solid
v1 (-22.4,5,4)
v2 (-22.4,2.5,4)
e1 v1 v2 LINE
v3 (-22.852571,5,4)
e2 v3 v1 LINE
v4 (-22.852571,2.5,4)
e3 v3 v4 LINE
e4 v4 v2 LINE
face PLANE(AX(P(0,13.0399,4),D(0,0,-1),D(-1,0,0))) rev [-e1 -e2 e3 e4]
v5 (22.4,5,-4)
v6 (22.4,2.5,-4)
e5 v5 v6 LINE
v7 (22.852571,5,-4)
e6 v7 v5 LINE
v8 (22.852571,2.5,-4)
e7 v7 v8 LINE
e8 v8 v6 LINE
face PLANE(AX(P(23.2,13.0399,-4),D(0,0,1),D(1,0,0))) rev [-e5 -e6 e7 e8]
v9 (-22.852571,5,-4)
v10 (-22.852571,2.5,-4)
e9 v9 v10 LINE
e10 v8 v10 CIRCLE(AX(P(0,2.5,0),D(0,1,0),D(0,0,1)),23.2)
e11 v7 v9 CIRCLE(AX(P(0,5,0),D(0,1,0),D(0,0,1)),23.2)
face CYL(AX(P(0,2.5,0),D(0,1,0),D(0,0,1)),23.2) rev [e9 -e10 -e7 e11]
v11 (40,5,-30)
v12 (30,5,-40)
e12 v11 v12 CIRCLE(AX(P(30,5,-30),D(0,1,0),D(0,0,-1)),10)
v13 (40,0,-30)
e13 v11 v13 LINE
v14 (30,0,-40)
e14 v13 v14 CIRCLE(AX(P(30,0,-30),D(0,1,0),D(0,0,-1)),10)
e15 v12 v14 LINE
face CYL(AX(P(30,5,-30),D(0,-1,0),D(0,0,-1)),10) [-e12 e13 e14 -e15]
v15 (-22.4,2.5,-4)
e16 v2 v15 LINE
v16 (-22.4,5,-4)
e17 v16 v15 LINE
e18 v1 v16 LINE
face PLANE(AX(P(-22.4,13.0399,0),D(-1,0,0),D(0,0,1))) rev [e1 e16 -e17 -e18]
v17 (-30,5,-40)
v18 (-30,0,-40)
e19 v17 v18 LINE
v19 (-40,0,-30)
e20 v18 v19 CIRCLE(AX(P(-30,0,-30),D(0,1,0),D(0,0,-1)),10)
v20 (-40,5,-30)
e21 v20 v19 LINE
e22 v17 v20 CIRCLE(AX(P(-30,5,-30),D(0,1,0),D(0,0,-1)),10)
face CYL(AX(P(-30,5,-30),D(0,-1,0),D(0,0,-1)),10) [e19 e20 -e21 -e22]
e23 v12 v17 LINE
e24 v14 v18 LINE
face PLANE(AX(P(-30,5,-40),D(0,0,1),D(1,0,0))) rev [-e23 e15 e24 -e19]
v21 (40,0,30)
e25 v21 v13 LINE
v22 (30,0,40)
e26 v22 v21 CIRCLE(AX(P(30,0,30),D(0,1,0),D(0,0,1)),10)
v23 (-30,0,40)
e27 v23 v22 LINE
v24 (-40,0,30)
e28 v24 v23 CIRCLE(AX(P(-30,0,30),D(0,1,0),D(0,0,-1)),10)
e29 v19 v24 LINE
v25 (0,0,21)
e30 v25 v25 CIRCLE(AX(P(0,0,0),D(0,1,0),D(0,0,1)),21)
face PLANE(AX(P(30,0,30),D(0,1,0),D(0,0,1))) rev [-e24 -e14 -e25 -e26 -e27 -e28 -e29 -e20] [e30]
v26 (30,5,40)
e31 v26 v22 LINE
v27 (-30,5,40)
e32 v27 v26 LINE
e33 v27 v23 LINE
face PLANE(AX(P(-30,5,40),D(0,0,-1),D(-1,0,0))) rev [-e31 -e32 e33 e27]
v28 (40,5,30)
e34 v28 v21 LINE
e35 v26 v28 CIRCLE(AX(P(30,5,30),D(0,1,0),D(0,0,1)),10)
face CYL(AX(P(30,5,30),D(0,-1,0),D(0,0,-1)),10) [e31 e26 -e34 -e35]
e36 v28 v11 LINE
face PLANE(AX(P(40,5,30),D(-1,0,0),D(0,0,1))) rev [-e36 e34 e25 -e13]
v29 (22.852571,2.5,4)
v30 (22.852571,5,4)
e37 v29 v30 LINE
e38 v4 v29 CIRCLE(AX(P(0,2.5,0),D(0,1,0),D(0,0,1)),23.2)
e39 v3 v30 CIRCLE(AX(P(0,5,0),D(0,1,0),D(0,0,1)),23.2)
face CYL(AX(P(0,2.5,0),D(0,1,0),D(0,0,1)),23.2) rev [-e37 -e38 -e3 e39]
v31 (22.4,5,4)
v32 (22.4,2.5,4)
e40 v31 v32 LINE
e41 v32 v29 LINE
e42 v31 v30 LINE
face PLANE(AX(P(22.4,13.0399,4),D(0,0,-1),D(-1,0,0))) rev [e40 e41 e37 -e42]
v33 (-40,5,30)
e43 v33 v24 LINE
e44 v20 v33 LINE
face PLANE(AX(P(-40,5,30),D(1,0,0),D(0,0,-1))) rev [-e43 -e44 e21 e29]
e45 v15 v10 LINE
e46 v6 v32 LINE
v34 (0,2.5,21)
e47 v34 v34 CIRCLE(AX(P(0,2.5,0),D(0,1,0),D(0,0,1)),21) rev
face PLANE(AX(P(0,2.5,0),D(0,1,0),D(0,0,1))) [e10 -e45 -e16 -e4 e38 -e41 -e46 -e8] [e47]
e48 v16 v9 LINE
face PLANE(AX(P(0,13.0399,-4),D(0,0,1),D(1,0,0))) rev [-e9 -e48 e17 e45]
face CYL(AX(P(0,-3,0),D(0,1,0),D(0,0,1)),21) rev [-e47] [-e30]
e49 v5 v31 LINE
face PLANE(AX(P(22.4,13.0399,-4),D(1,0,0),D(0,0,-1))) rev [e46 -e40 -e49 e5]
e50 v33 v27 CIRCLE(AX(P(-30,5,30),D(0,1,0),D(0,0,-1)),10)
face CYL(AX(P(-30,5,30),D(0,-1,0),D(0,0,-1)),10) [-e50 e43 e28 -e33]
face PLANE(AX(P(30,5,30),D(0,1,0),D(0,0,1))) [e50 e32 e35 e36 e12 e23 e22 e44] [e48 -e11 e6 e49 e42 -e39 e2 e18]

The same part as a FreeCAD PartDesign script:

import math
import FreeCAD as App
import Part
import Sketcher

V = App.Vector
Q = App.Units.Quantity


def add_polygon(sketch, points):
    """Adds a closed chain of lines whose ends are joined by coincident constraints."""
    first, n = sketch.GeometryCount, len(points)
    for a, b in zip(points, points[1:] + points[:1]):
        sketch.addGeometry(Part.LineSegment(App.Vector(*a, 0), App.Vector(*b, 0)), False)
    for i in range(n):
        sketch.addConstraint(Sketcher.Constraint("Coincident", first + i, 2, first + (i + 1) % n, 1))

doc = App.newDocument("Part")
params = doc.addObject("Spreadsheet::Sheet", "Params")
for row, (alias, value) in enumerate([
    ("sketch1_radius", "10 mm"),
    ("sketch1_width", "60 mm"),
    ("pad1_length", "5 mm"),
    ("sketch2_diameter", "42 mm"),
    ("pocket1_length", "8 mm"),
    ("sketch3_diameter", "46.4 mm"),
    ("pocket2_length", "2.5 mm"),
    ("sketch4_radius", "23.2 mm"),
    ("sketch4_height", "8 mm"),
    ("sketch4_width", "0.8 mm"),
    ("pad2_length", "2.5 mm"),
], start=1):
    params.set(f"A{row}", alias)
    params.set(f"B{row}", "=" + value)
    params.setAlias(f"B{row}", alias)

body = doc.addObject("PartDesign::Body", "Body")

# Sketch on XZ plane
sketch1 = body.newObject("Sketcher::SketchObject", "Sketch")
sketch1.AttachmentSupport = (doc.getObject("XZ_Plane"), [""])
sketch1.MapMode = "FlatFace"
sketch1.addGeometry(Part.LineSegment(V(-30, 40, 0), V(30, 40, 0)), False)
sketch1.addGeometry(Part.ArcOfCircle(Part.Circle(V(30, 30, 0), V(0, 0, 1), 10), math.radians(0), math.radians(90)), False)
sketch1.addGeometry(Part.LineSegment(V(40, 30, 0), V(40, -30, 0)), False)
sketch1.addGeometry(Part.ArcOfCircle(Part.Circle(V(30, -30, 0), V(0, 0, 1), 10), math.radians(-90), math.radians(0)), False)
sketch1.addGeometry(Part.LineSegment(V(30, -40, 0), V(-30, -40, 0)), False)
sketch1.addGeometry(Part.ArcOfCircle(Part.Circle(V(-30, -30, 0), V(0, 0, 1), 10), math.radians(180), math.radians(270)), False)
sketch1.addGeometry(Part.LineSegment(V(-40, -30, 0), V(-40, 30, 0)), False)
sketch1.addGeometry(Part.ArcOfCircle(Part.Circle(V(-30, 30, 0), V(0, 0, 1), 10), math.radians(90), math.radians(180)), False)
sketch1.addConstraint(Sketcher.Constraint("Tangent", 0, 2, 1, 2))
sketch1.addConstraint(Sketcher.Constraint("Tangent", 1, 1, 2, 1))
sketch1.addConstraint(Sketcher.Constraint("Tangent", 2, 2, 3, 2))
sketch1.addConstraint(Sketcher.Constraint("Tangent", 3, 1, 4, 1))
sketch1.addConstraint(Sketcher.Constraint("Tangent", 4, 2, 5, 2))
sketch1.addConstraint(Sketcher.Constraint("Tangent", 5, 1, 6, 1))
sketch1.addConstraint(Sketcher.Constraint("Tangent", 6, 2, 7, 2))
sketch1.addConstraint(Sketcher.Constraint("Tangent", 7, 1, 0, 1))
sketch1.addConstraint(Sketcher.Constraint("Horizontal", 0))
sketch1.addConstraint(Sketcher.Constraint("Vertical", 2))
sketch1.addConstraint(Sketcher.Constraint("Horizontal", 4))
sketch1.addConstraint(Sketcher.Constraint("Vertical", 6))
sketch1.addConstraint(Sketcher.Constraint("Equal", 1, 3))
sketch1.addConstraint(Sketcher.Constraint("Equal", 3, 5))
sketch1.addConstraint(Sketcher.Constraint("Equal", 5, 7))
sketch1.addConstraint(Sketcher.Constraint("Symmetric", 1, 3, 5, 3, -1, 1))
sketch1.addConstraint(Sketcher.Constraint("Equal", 4, 2))
sketch1.addConstraint(Sketcher.Constraint("Radius", 1, Q("10 mm")))
sketch1.addConstraint(Sketcher.Constraint("DistanceX", 0, 1, 0, 2, Q("60 mm")))
sketch1.setExpression("Constraints[17]", "Params.sketch1_radius")
sketch1.setExpression("Constraints[18]", "Params.sketch1_width")
pad1 = body.newObject("PartDesign::Pad", "Pad")
pad1.Profile = sketch1
pad1.setExpression("Length", "Params.pad1_length")
pad1.Reversed = True

# Sketch on XZ plane
sketch2 = body.newObject("Sketcher::SketchObject", "Sketch001")
sketch2.AttachmentSupport = (doc.getObject("XZ_Plane"), [""])
sketch2.MapMode = "FlatFace"
sketch2.AttachmentOffset = App.Placement(V(0, 0, -5), App.Rotation())
sketch2.addGeometry(Part.Circle(V(0, 0, 0), V(0, 0, 1), 21), False)
sketch2.addConstraint(Sketcher.Constraint("Coincident", 0, 3, -1, 1))
sketch2.addConstraint(Sketcher.Constraint("Diameter", 0, Q("42 mm")))
sketch2.setExpression("Constraints[1]", "Params.sketch2_diameter")
pocket1 = body.newObject("PartDesign::Pocket", "Pocket")
pocket1.Profile = sketch2
pocket1.setExpression("Length", "Params.pocket1_length")
pocket1.Reversed = True

# Sketch on XZ plane
sketch3 = body.newObject("Sketcher::SketchObject", "Sketch002")
sketch3.AttachmentSupport = (doc.getObject("XZ_Plane"), [""])
sketch3.MapMode = "FlatFace"
sketch3.AttachmentOffset = App.Placement(V(0, 0, -5), App.Rotation())
sketch3.addGeometry(Part.Circle(V(0, 0, 0), V(0, 0, 1), 23.2), False)
sketch3.addConstraint(Sketcher.Constraint("Coincident", 0, 3, -1, 1))
sketch3.addConstraint(Sketcher.Constraint("Diameter", 0, Q("46.4 mm")))
sketch3.setExpression("Constraints[1]", "Params.sketch3_diameter")
pocket2 = body.newObject("PartDesign::Pocket", "Pocket001")
pocket2.Profile = sketch3
pocket2.setExpression("Length", "Params.pocket2_length")
pocket2.Reversed = True

# Sketch on XZ plane
sketch4 = body.newObject("Sketcher::SketchObject", "Sketch003")
sketch4.AttachmentSupport = (doc.getObject("XZ_Plane"), [""])
sketch4.MapMode = "FlatFace"
sketch4.AttachmentOffset = App.Placement(V(0, 0, -5), App.Rotation())
sketch4.addGeometry(Part.LineSegment(V(-22.4, -4, 0), V(-22.852571, -4, 0)), False)  # 0
sketch4.addGeometry(Part.ArcOfCircle(Part.Circle(V(0, 0, 0), V(0, 0, 1), 23.2), math.radians(180), math.radians(189.928192)), False)  # 1
sketch4.addGeometry(Part.ArcOfCircle(Part.Circle(V(0, 0, 0), V(0, 0, 1), 23.2), math.radians(170.071808), math.radians(180)), False)  # 2
sketch4.addGeometry(Part.LineSegment(V(-22.852571, 4, 0), V(-22.4, 4, 0)), False)  # 3
sketch4.addGeometry(Part.LineSegment(V(-22.4, 4, 0), V(-22.4, -4, 0)), False)  # 4
add_polygon(sketch4, [(23.2, -4), (22.4, -4), (22.4, 4), (23.2, 4)])  # lines 5-8
sketch4.addConstraint(Sketcher.Constraint("Coincident", 0, 2, 1, 2))
sketch4.addConstraint(Sketcher.Constraint("Tangent", 1, 1, 2, 2))
sketch4.addConstraint(Sketcher.Constraint("Coincident", 2, 1, 3, 1))
sketch4.addConstraint(Sketcher.Constraint("Coincident", 3, 2, 4, 1))
sketch4.addConstraint(Sketcher.Constraint("Coincident", 4, 2, 0, 1))
sketch4.addConstraint(Sketcher.Constraint("Horizontal", 0))
sketch4.addConstraint(Sketcher.Constraint("Horizontal", 3))
sketch4.addConstraint(Sketcher.Constraint("Vertical", 4))
sketch4.addConstraint(Sketcher.Constraint("Horizontal", 5))
sketch4.addConstraint(Sketcher.Constraint("Vertical", 6))
sketch4.addConstraint(Sketcher.Constraint("Horizontal", 7))
sketch4.addConstraint(Sketcher.Constraint("Vertical", 8))
sketch4.addConstraint(Sketcher.Constraint("Coincident", 1, 3, -1, 1))
sketch4.addConstraint(Sketcher.Constraint("Equal", 1, 2))
sketch4.addConstraint(Sketcher.Constraint("Symmetric", 3, 2, 5, 2, -1, 1))
sketch4.addConstraint(Sketcher.Constraint("PointOnObject", 1, 1, -1))
sketch4.addConstraint(Sketcher.Constraint("Horizontal", 4, 2, 5, 2))
sketch4.addConstraint(Sketcher.Constraint("Horizontal", 3, 2, 6, 2))
sketch4.addConstraint(Sketcher.Constraint("Radius", 1, Q("23.2 mm")))
sketch4.addConstraint(Sketcher.Constraint("DistanceY", 4, 2, 4, 1, Q("8 mm")))
sketch4.addConstraint(Sketcher.Constraint("DistanceX", 5, 2, 5, 1, Q("0.8 mm")))
sketch4.addConstraint(Sketcher.Constraint("DistanceX", 3, 2, -1, 1, Q("22.4 mm")))
sketch4.setExpression("Constraints[22]", "Params.sketch4_radius")
sketch4.setExpression("Constraints[23]", "Params.sketch4_height")
sketch4.setExpression("Constraints[24]", "Params.sketch4_width")
pad2 = body.newObject("PartDesign::Pad", "Pad001")
pad2.Profile = sketch4
pad2.setExpression("Length", "Params.pad2_length")

doc.recompute()
